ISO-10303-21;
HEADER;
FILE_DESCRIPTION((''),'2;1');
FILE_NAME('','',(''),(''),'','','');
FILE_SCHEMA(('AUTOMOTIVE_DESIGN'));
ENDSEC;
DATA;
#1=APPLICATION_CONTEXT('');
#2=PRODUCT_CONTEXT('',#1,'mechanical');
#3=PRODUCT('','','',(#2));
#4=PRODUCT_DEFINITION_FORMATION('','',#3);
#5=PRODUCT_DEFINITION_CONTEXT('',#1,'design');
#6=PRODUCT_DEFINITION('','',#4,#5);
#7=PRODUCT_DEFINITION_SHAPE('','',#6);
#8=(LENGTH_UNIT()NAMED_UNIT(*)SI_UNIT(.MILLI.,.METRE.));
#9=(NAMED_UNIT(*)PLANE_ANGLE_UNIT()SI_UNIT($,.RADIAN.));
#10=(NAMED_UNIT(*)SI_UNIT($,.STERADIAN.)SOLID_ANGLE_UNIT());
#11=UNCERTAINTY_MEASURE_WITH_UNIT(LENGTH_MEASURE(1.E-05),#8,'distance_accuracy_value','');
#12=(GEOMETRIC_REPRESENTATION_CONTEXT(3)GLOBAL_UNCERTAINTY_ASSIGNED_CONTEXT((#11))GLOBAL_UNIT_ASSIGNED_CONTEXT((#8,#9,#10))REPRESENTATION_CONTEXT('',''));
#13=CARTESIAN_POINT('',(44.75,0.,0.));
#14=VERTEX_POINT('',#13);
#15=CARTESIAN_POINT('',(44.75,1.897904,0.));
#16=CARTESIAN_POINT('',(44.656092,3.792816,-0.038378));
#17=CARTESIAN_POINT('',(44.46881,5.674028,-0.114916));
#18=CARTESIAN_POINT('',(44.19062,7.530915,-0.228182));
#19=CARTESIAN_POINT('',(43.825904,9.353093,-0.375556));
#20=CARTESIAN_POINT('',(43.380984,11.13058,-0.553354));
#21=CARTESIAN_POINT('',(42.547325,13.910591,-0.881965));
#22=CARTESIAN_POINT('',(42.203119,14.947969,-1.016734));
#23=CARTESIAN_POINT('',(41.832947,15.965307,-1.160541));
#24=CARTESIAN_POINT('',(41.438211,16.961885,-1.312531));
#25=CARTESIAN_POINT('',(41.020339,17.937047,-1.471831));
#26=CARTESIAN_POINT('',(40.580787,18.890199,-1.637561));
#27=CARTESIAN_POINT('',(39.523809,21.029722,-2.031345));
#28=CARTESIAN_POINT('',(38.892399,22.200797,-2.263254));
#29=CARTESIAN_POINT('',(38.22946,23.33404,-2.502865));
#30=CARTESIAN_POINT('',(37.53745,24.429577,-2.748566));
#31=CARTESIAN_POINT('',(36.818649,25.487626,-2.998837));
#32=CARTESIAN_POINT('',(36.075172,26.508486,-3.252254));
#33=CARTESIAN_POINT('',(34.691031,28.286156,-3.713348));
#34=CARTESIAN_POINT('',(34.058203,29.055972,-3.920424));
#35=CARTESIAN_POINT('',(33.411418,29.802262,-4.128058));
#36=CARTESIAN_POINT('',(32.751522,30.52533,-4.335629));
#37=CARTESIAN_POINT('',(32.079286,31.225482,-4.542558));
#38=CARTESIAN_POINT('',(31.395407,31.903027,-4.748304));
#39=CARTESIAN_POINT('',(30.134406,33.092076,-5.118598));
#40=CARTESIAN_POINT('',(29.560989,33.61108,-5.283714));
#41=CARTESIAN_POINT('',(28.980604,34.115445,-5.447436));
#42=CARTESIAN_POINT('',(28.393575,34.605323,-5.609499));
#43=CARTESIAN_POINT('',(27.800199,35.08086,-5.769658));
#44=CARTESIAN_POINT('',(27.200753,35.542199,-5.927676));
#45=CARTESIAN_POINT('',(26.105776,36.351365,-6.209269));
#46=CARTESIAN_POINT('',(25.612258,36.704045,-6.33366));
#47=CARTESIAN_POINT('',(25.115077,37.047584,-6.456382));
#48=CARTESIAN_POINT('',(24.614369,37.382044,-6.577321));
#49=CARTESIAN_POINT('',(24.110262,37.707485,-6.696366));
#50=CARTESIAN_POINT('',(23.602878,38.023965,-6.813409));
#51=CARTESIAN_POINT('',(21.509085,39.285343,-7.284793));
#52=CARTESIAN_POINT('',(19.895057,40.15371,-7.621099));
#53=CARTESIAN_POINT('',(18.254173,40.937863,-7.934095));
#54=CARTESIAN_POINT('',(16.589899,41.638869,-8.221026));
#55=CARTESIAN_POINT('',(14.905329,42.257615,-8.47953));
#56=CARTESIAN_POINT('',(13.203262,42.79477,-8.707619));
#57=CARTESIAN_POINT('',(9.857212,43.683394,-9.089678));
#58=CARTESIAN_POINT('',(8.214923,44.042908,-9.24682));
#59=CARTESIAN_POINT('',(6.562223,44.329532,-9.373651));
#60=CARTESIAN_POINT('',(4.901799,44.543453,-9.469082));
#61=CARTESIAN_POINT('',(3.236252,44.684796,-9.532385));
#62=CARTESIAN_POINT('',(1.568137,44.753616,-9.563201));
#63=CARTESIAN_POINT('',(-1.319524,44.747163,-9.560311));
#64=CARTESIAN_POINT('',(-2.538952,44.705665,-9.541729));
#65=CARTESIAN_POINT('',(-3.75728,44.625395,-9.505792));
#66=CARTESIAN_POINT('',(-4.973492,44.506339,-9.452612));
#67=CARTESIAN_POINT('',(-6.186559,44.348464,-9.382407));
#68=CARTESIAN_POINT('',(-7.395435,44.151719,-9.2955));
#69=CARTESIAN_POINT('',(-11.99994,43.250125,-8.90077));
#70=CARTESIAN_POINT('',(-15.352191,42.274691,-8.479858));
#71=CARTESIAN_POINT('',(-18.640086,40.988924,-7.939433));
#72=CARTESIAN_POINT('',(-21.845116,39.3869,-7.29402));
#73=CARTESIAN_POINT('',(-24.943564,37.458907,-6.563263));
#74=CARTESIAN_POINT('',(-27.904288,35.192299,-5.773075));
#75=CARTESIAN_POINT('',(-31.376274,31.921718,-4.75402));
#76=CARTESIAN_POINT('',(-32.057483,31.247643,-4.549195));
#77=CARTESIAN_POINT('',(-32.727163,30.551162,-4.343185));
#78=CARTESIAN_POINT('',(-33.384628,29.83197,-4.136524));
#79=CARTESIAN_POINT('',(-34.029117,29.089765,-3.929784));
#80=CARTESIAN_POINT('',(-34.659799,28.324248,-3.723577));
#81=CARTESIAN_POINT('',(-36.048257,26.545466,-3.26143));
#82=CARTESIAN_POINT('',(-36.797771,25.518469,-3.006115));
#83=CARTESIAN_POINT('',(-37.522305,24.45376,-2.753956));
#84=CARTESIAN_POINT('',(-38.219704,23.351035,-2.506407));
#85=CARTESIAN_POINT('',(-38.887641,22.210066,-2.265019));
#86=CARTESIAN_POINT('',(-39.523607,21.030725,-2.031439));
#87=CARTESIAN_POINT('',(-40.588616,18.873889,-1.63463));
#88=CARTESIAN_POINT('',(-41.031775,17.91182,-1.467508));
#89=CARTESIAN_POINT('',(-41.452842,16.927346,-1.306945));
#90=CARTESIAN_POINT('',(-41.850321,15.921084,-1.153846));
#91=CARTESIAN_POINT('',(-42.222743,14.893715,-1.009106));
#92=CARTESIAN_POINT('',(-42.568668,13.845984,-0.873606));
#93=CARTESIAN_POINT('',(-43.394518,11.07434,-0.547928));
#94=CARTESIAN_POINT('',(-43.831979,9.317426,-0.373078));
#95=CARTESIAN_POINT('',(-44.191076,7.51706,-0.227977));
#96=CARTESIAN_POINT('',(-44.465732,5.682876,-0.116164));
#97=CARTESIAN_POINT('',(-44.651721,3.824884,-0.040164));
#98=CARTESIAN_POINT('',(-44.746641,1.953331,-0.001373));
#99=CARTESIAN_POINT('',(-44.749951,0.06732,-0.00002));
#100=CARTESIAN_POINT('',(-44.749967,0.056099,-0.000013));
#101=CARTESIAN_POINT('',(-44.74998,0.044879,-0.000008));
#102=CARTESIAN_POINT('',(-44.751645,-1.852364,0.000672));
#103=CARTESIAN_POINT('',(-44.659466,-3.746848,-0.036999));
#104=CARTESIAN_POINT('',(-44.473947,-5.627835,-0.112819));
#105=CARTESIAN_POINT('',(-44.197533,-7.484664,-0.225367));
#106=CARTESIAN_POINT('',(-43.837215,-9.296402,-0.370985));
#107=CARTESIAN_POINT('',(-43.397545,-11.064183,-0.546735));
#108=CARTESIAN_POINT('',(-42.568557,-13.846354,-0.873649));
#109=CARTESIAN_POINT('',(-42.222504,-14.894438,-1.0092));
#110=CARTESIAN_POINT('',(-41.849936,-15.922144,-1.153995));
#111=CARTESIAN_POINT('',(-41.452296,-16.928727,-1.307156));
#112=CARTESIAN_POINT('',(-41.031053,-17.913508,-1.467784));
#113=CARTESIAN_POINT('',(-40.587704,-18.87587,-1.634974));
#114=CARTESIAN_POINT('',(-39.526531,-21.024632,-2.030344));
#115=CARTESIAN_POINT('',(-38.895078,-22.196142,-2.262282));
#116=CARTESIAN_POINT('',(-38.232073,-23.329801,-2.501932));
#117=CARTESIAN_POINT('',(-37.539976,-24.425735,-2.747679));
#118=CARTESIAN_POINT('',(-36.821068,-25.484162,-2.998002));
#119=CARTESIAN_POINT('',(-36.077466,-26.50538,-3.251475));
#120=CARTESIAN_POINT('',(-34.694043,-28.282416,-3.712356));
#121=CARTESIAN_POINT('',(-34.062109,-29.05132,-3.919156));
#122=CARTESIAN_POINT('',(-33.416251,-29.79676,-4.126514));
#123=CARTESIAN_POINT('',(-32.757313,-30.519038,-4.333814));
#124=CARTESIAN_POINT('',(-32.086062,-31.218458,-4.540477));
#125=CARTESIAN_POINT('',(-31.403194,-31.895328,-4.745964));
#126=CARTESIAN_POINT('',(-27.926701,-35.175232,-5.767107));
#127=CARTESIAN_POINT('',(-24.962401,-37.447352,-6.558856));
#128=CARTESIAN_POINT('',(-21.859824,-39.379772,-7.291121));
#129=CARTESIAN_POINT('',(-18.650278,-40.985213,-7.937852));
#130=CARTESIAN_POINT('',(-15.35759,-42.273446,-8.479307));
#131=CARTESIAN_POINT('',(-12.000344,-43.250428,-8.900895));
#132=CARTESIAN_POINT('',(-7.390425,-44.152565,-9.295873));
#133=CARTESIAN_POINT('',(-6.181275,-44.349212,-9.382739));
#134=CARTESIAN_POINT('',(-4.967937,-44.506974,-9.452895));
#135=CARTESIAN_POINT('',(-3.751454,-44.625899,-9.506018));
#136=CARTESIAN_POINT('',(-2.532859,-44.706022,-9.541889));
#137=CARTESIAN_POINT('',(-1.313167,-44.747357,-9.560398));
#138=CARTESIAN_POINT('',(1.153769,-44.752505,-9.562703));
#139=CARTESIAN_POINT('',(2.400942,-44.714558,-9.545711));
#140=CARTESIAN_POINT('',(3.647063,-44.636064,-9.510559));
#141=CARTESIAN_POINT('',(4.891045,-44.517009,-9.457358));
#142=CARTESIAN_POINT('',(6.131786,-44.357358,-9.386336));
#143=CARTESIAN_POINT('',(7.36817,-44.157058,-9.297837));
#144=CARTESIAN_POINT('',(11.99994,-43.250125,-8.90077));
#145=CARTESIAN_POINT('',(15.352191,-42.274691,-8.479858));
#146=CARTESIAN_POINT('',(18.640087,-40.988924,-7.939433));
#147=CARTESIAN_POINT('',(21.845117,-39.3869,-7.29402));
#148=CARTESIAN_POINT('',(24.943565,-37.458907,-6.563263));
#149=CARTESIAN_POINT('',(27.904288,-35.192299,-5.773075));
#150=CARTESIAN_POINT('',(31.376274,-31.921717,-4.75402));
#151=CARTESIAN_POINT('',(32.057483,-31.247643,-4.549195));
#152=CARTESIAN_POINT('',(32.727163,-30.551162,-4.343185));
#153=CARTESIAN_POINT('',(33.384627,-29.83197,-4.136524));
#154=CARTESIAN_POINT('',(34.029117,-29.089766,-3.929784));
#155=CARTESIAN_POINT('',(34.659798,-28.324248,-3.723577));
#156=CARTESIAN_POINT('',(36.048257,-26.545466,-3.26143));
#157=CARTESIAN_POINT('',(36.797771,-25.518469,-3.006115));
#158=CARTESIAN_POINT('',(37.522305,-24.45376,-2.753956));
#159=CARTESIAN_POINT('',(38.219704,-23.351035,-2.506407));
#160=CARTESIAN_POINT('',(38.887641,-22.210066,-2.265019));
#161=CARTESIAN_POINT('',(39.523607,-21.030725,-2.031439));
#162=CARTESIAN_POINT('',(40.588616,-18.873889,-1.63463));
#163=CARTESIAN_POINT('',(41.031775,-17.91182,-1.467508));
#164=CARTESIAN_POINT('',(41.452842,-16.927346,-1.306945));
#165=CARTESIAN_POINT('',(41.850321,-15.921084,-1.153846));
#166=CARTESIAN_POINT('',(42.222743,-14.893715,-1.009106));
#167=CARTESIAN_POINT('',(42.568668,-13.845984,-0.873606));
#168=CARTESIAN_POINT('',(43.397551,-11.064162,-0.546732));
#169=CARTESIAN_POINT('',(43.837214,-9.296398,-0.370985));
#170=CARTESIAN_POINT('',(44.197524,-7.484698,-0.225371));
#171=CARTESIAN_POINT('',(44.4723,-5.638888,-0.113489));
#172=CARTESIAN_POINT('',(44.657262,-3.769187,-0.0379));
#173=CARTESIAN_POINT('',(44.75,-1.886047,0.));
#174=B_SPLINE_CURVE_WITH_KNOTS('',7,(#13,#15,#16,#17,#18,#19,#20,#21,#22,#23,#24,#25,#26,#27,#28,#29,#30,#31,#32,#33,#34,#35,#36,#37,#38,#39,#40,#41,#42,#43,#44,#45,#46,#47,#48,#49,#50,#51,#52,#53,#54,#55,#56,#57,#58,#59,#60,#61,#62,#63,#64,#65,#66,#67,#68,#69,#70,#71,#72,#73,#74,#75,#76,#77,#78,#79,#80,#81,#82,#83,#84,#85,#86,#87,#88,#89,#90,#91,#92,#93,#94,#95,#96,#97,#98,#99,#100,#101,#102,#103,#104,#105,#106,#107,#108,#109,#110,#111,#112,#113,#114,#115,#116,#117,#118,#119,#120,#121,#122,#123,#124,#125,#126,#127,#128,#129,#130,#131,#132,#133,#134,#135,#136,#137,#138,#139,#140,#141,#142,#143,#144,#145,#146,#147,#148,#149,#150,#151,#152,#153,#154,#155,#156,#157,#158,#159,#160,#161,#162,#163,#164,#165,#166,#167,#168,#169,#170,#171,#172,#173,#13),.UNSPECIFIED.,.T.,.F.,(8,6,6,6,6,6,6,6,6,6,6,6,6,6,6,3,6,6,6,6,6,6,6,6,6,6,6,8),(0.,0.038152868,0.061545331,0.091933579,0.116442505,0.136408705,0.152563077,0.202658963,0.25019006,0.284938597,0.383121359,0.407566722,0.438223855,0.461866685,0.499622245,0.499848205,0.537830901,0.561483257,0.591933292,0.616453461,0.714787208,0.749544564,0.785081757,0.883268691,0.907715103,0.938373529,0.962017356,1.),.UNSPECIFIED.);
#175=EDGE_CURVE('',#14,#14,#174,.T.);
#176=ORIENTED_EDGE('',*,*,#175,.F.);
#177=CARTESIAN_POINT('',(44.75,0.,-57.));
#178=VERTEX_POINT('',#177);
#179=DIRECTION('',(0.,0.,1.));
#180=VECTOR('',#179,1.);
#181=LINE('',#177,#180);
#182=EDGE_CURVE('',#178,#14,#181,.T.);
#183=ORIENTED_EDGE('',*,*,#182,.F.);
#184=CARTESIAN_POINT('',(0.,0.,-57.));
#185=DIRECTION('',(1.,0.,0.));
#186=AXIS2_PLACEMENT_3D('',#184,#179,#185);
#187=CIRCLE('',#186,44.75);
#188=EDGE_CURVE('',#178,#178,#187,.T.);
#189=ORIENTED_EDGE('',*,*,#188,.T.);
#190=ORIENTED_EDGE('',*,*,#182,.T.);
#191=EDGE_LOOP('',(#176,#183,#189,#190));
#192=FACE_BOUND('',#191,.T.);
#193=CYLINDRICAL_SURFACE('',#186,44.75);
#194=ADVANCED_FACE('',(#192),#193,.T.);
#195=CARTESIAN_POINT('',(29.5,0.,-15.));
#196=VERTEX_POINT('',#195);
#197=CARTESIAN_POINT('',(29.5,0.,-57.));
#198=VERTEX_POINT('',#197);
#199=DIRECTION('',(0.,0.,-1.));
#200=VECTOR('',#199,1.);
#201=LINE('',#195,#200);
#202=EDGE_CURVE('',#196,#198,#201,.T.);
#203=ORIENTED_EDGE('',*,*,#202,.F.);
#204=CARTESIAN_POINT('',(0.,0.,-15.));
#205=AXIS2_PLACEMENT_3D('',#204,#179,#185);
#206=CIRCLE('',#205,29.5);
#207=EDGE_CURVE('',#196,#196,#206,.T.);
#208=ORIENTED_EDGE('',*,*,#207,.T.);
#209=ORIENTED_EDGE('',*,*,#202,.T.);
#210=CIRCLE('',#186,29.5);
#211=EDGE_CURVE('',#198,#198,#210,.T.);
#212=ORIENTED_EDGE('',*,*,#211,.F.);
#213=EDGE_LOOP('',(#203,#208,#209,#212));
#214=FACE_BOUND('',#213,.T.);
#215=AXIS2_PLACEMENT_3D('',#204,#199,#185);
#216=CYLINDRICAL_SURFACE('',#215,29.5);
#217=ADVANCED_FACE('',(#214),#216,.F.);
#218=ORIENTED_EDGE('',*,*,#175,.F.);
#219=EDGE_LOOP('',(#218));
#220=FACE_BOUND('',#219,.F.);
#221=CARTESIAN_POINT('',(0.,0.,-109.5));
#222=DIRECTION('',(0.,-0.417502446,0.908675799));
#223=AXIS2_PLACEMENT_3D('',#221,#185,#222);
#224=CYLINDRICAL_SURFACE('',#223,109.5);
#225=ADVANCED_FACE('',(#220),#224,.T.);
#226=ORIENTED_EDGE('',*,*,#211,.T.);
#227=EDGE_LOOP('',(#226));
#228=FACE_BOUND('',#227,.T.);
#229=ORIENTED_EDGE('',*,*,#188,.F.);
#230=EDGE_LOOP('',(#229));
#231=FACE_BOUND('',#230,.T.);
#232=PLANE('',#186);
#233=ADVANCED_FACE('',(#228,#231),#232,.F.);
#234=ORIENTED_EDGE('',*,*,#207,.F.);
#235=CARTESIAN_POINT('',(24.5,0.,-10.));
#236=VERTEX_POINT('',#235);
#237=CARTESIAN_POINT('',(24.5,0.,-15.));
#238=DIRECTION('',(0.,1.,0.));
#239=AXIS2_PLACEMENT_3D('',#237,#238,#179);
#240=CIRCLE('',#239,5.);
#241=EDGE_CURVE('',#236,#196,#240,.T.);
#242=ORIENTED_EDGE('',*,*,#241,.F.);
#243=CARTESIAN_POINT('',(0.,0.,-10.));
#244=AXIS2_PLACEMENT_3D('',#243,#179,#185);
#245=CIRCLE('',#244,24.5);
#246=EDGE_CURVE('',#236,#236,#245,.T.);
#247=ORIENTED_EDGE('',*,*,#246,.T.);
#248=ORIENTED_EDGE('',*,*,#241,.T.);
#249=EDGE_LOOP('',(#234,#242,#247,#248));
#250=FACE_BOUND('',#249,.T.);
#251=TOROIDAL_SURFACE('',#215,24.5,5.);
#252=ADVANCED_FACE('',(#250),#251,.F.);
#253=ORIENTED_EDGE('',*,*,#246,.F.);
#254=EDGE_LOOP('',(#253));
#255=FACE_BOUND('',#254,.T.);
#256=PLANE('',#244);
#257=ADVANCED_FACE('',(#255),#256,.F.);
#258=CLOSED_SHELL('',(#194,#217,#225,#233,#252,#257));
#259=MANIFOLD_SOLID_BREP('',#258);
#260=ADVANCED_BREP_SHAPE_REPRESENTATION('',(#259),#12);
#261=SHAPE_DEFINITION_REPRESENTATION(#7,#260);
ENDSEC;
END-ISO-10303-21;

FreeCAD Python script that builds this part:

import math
import FreeCAD as App
import Part
import Sketcher
from FreeCAD import Vector

doc = App.newDocument("Part")
params = doc.addObject("Spreadsheet::Sheet", "Params")
for row, (alias, value) in enumerate([
    ("sketch1_radius", "5 mm"),
    ("sketch1_height", "10 mm"),
    ("sketch1_height2", "42 mm"),
    ("sketch1_width", "24.5 mm"),
    ("sketch1_width2", "44.75 mm"),
    ("revolution_angle", "360 deg"),
    ("sketch2_radius", "109.5 mm"),
    ("sketch2_height", "20 mm"),
    ("pocket1_length", "100 mm"),
], start=1):
    params.set(f"A{row}", alias)
    params.set(f"B{row}", "=" + value)
    params.setAlias(f"B{row}", alias)

body = doc.addObject("PartDesign::Body", "Body")

# Sketch on XZ plane
sketch1 = doc.addObject("Sketcher::SketchObject", "Sketch")
body.addObject(sketch1)
sketch1.AttachmentSupport = (doc.XZ_Plane, [""])
sketch1.MapMode = "FlatFace"
sketch1.addGeometry(Part.LineSegment(Vector(45, 0, 0), Vector(0, 0, 0)), False)
sketch1.addGeometry(Part.LineSegment(Vector(0, 0, 0), Vector(0, -10, 0)), False)
sketch1.addGeometry(Part.LineSegment(Vector(0, -10, 0), Vector(24, -10, 0)), False)
sketch1.addGeometry(Part.ArcOfCircle(Part.Circle(Vector(24, -15, 0), Vector(0, 0, 1), 5), math.radians(0), math.radians(90)), False)
sketch1.addGeometry(Part.LineSegment(Vector(30, -15, 0), Vector(30, -57, 0)), False)
sketch1.addGeometry(Part.LineSegment(Vector(30, -57, 0), Vector(45, -57, 0)), False)
sketch1.addGeometry(Part.LineSegment(Vector(45, -57, 0), Vector(45, 0, 0)), False)
sketch1.addConstraint(Sketcher.Constraint("Coincident", 0, 2, 1, 1))
sketch1.addConstraint(Sketcher.Constraint("Coincident", 1, 2, 2, 1))
sketch1.addConstraint(Sketcher.Constraint("Tangent", 2, 2, 3, 2))
sketch1.addConstraint(Sketcher.Constraint("Tangent", 3, 1, 4, 1))
sketch1.addConstraint(Sketcher.Constraint("Coincident", 4, 2, 5, 1))
sketch1.addConstraint(Sketcher.Constraint("Coincident", 5, 2, 6, 1))
sketch1.addConstraint(Sketcher.Constraint("Coincident", 6, 2, 0, 1))
sketch1.addConstraint(Sketcher.Constraint("Horizontal", 0))
sketch1.addConstraint(Sketcher.Constraint("Vertical", 1))
sketch1.addConstraint(Sketcher.Constraint("Horizontal", 2))
sketch1.addConstraint(Sketcher.Constraint("Vertical", 4))
sketch1.addConstraint(Sketcher.Constraint("Horizontal", 5))
sketch1.addConstraint(Sketcher.Constraint("Vertical", 6))
sketch1.addConstraint(Sketcher.Constraint("Coincident", 0, 2, -1, 1))
sketch1.addConstraint(Sketcher.Constraint("Radius", 3, 5.0))
sketch1.addConstraint(Sketcher.Constraint("DistanceY", 1, 2, 1, 1, 10.0))
sketch1.addConstraint(Sketcher.Constraint("DistanceY", 4, 2, 4, 1, 42.0))
sketch1.addConstraint(Sketcher.Constraint("DistanceX", 2, 1, 2, 2, 24.5))
sketch1.addConstraint(Sketcher.Constraint("DistanceX", 0, 2, 0, 1, 44.75))
sketch1.setExpression("Constraints[14]", "Params.sketch1_radius")
sketch1.setExpression("Constraints[15]", "Params.sketch1_height")
sketch1.setExpression("Constraints[16]", "Params.sketch1_height2")
sketch1.setExpression("Constraints[17]", "Params.sketch1_width")
sketch1.setExpression("Constraints[18]", "Params.sketch1_width2")
revolution = doc.addObject("PartDesign::Revolution", "Revolution")
body.addObject(revolution)
revolution.Profile = sketch1
revolution.ReferenceAxis = (sketch1, ["V_Axis"])
revolution.setExpression("Angle", "Params.revolution_angle")

# Sketch on YZ plane
sketch2 = doc.addObject("Sketcher::SketchObject", "Sketch001")
body.addObject(sketch2)
sketch2.AttachmentSupport = (doc.YZ_Plane, [""])
sketch2.MapMode = "FlatFace"
sketch2.addGeometry(Part.LineSegment(Vector(-46, 10, 0), Vector(-46, -10, 0)), False)
sketch2.addGeometry(Part.ArcOfCircle(Part.Circle(Vector(0, -110, 0), Vector(0, 0, 1), 110), math.radians(65), math.radians(115)), False)
sketch2.addGeometry(Part.LineSegment(Vector(46, -10, 0), Vector(46, 10, 0)), False)
sketch2.addGeometry(Part.LineSegment(Vector(46, 10, 0), Vector(-46, 10, 0)), False)
sketch2.addConstraint(Sketcher.Constraint("Coincident", 0, 2, 1, 2))
sketch2.addConstraint(Sketcher.Constraint("Coincident", 1, 1, 2, 1))
sketch2.addConstraint(Sketcher.Constraint("Coincident", 2, 2, 3, 1))
sketch2.addConstraint(Sketcher.Constraint("Coincident", 3, 2, 0, 1))
sketch2.addConstraint(Sketcher.Constraint("Vertical", 0))
sketch2.addConstraint(Sketcher.Constraint("Vertical", 2))
sketch2.addConstraint(Sketcher.Constraint("Horizontal", 3))
sketch2.addConstraint(Sketcher.Constraint("Symmetric", 0, 2, 2, 2, -1, 1))
sketch2.addConstraint(Sketcher.Constraint("PointOnObject", 1, 3, -2))
sketch2.addConstraint(Sketcher.Constraint("Radius", 1, 109.5))
sketch2.addConstraint(Sketcher.Constraint("DistanceY", 0, 2, 0, 1, 20.0))
sketch2.addConstraint(Sketcher.Constraint("DistanceY", 1, 3, -1, 1, 109.5))
sketch2.setExpression("Constraints[9]", "Params.sketch2_radius")
sketch2.setExpression("Constraints[10]", "Params.sketch2_height")
pocket1 = doc.addObject("PartDesign::Pocket", "Pocket")
body.addObject(pocket1)
pocket1.Profile = sketch2
pocket1.setExpression("Length", "Params.pocket1_length")
pocket1.Midplane = True

doc.recompute()
